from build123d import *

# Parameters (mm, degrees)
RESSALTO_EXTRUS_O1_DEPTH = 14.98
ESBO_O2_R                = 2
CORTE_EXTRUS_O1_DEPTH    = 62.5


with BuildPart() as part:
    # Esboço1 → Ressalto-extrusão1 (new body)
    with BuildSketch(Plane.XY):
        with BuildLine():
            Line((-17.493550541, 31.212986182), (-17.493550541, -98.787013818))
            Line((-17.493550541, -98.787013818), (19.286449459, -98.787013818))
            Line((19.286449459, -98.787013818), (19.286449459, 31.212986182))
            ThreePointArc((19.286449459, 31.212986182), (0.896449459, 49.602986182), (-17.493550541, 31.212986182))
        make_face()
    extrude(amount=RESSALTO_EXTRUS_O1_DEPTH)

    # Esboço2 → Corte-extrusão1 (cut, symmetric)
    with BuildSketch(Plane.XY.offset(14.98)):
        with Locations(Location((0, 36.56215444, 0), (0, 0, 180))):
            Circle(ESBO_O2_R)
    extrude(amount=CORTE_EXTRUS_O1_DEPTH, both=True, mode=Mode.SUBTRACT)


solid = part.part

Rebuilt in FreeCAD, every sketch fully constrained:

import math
import FreeCAD as App
import Part
import Sketcher
Q = App.Units.Quantity

doc = App.newDocument("Part")
body = doc.addObject("PartDesign::Body", "Body")

# Sketch on XY plane
sketch1 = doc.addObject("Sketcher::SketchObject", "Sketch")
body.addObject(sketch1)
sketch1.AttachmentSupport = (doc.XY_Plane, [""])
sketch1.MapMode = "FlatFace"
sketch1.addGeometry(Part.LineSegment(App.Vector(-17, 31, 0), App.Vector(-17, -99, 0)), False)
sketch1.addGeometry(Part.LineSegment(App.Vector(-17, -99, 0), App.Vector(19, -99, 0)), False)
sketch1.addGeometry(Part.LineSegment(App.Vector(19, -99, 0), App.Vector(19, 31, 0)), False)
sketch1.addGeometry(Part.ArcOfCircle(Part.Circle(App.Vector(1, 31, 0), App.Vector(0, 0, 1), 18), math.radians(0), math.radians(180)), False)
sketch1.addConstraint(Sketcher.Constraint("Coincident", 0, 2, 1, 1))
sketch1.addConstraint(Sketcher.Constraint("Coincident", 1, 2, 2, 1))
sketch1.addConstraint(Sketcher.Constraint("Tangent", 2, 2, 3, 1))
sketch1.addConstraint(Sketcher.Constraint("Tangent", 3, 2, 0, 1))
sketch1.addConstraint(Sketcher.Constraint("Vertical", 0))
sketch1.addConstraint(Sketcher.Constraint("Horizontal", 1))
sketch1.addConstraint(Sketcher.Constraint("Vertical", 2))
sketch1.addConstraint(Sketcher.Constraint("DistanceY", 0, 2, 0, 1, Q("130 mm")))
sketch1.addConstraint(Sketcher.Constraint("Radius", 3, Q("18.39 mm")))
sketch1.addConstraint(Sketcher.Constraint("DistanceX", -1, 1, 3, 3, Q("0.896449 mm")))
sketch1.addConstraint(Sketcher.Constraint("DistanceY", -1, 1, 3, 3, Q("31.212986 mm")))
pad1 = doc.addObject("PartDesign::Pad", "Pad")
body.addObject(pad1)
pad1.Profile = sketch1
pad1.Length = 14.98

# Sketch on XY plane
sketch2 = doc.addObject("Sketcher::SketchObject", "Sketch001")
body.addObject(sketch2)
sketch2.AttachmentSupport = (doc.XY_Plane, [""])
sketch2.MapMode = "FlatFace"
sketch2.AttachmentOffset = App.Placement(App.Vector(0, 0, 14.98), App.Rotation())
sketch2.addGeometry(Part.Circle(App.Vector(0, 36.6, 0), App.Vector(0, 0, 1), 2), False)
sketch2.addConstraint(Sketcher.Constraint("PointOnObject", 0, 3, -2))
sketch2.addConstraint(Sketcher.Constraint("Diameter", 0, Q("4 mm")))
sketch2.addConstraint(Sketcher.Constraint("DistanceY", -1, 1, 0, 3, Q("36.562154 mm")))
pocket1 = doc.addObject("PartDesign::Pocket", "Pocket")
body.addObject(pocket1)
pocket1.Profile = sketch2
pocket1.Length = 125
pocket1.Midplane = True

doc.recompute()
